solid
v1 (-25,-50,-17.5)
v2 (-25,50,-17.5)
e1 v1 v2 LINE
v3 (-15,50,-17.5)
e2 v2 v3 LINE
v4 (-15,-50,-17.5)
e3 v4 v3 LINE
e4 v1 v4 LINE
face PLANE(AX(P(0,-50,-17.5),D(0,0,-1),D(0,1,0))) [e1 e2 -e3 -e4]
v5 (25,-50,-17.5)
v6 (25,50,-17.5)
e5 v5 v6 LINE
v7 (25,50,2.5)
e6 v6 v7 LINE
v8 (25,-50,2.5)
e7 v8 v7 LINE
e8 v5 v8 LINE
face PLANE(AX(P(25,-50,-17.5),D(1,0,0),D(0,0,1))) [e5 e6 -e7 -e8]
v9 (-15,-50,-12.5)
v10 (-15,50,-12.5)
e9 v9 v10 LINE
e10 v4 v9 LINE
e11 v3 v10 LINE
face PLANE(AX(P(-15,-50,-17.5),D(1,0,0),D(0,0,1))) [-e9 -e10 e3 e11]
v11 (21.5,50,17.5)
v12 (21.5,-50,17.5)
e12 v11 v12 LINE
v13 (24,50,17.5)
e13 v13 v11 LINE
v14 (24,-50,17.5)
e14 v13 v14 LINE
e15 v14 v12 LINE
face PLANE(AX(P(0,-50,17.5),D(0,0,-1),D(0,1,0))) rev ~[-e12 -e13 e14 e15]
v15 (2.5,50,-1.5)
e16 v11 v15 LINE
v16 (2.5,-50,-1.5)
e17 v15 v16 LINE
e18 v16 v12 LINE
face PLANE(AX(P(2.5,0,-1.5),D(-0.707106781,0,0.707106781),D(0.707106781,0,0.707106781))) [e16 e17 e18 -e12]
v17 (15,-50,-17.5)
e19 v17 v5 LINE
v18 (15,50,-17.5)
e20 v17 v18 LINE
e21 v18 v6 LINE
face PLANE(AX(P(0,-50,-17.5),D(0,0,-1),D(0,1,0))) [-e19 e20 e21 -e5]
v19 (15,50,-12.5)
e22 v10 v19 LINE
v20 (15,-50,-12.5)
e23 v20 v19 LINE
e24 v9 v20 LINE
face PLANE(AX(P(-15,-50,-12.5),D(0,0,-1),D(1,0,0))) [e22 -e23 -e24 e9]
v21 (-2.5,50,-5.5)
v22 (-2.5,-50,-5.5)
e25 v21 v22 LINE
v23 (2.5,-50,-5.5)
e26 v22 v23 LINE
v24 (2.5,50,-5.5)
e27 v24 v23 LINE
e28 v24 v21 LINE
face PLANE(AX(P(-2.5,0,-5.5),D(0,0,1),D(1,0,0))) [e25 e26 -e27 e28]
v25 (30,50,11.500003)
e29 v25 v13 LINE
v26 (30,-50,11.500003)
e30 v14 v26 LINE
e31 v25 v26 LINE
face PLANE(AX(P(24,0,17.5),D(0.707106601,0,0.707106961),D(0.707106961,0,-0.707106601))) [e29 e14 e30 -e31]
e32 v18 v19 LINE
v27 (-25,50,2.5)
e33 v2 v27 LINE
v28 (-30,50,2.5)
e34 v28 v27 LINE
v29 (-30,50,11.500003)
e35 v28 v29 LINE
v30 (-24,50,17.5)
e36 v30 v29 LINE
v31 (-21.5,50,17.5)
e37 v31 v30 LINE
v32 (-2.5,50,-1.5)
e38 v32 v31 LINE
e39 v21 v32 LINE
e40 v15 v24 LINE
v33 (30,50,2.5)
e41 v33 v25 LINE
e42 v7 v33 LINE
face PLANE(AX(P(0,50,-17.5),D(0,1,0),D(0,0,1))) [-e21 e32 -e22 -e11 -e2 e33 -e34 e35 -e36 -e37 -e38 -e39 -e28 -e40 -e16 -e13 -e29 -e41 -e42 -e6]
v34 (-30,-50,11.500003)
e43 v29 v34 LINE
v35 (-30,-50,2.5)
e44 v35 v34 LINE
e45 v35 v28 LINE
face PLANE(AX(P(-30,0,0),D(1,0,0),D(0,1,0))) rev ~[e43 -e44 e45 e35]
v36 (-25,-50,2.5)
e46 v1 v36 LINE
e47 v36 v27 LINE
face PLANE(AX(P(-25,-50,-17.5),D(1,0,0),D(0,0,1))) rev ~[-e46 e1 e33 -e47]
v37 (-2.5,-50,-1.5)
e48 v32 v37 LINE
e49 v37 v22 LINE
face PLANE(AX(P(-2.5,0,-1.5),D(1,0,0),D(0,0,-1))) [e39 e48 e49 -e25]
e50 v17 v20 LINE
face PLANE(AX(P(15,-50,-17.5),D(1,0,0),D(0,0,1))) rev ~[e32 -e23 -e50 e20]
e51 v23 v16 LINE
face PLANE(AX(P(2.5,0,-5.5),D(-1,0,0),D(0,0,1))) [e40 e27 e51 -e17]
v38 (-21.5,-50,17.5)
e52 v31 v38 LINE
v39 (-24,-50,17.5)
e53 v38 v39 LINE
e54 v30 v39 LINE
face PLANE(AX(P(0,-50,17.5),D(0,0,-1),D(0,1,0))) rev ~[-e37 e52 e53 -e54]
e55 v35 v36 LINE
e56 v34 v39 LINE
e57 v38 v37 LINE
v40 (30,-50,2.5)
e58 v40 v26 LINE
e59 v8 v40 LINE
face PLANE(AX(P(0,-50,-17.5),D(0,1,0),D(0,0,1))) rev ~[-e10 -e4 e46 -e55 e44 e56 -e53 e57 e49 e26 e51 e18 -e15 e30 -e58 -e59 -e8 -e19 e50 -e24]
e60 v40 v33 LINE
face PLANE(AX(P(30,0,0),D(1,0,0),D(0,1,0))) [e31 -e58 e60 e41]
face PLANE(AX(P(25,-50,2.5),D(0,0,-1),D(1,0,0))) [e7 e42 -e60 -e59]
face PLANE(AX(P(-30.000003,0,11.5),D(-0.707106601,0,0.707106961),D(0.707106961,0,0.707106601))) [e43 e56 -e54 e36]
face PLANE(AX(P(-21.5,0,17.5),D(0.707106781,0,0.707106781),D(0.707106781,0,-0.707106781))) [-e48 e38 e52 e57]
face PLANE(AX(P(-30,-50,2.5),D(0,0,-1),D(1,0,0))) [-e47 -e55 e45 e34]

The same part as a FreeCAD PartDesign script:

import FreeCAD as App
import Part
import Sketcher
Q = App.Units.Quantity


def add_polygon(sketch, points):
    """Adds a closed chain of lines whose ends are joined by coincident constraints."""
    first, n = sketch.GeometryCount, len(points)
    for a, b in zip(points, points[1:] + points[:1]):
        sketch.addGeometry(Part.LineSegment(App.Vector(*a, 0), App.Vector(*b, 0)), False)
    for i in range(n):
        sketch.addConstraint(Sketcher.Constraint("Coincident", first + i, 2, first + (i + 1) % n, 1))

doc = App.newDocument("Part")
body = doc.addObject("PartDesign::Body", "Body")

# Sketch on YZ plane
sketch1 = body.newObject("Sketcher::SketchObject", "Sketch")
sketch1.AttachmentSupport = (doc.getObject("YZ_Plane"), [""])
sketch1.MapMode = "FlatFace"
add_polygon(sketch1, [(-50, 17.5), (-50, -17.5), (50, -17.5), (50, 17.5)])  # lines 0-3
sketch1.addConstraint(Sketcher.Constraint("Vertical", 0))
sketch1.addConstraint(Sketcher.Constraint("Horizontal", 1))
sketch1.addConstraint(Sketcher.Constraint("Vertical", 2))
sketch1.addConstraint(Sketcher.Constraint("Horizontal", 3))
sketch1.addConstraint(Sketcher.Constraint("Symmetric", 0, 2, 2, 2, -1, 1))
sketch1.addConstraint(Sketcher.Constraint("DistanceX", 1, 1, 1, 2, Q("100 mm")))
sketch1.addConstraint(Sketcher.Constraint("DistanceY", 0, 2, 0, 1, Q("35 mm")))
pad1 = body.newObject("PartDesign::Pad", "Pad")
pad1.Profile = sketch1
pad1.Length = 60
pad1.Midplane = True

# Sketch on XZ plane
sketch2 = body.newObject("Sketcher::SketchObject", "Sketch001")
sketch2.AttachmentSupport = (doc.getObject("XZ_Plane"), [""])
sketch2.MapMode = "FlatFace"
sketch2.AttachmentOffset = App.Placement(App.Vector(0, 0, 50), App.Rotation())
add_polygon(sketch2, [(-30, 2.5), (-30, -17.5), (-25, -17.5), (-25, 2.5)])  # lines 0-3
add_polygon(sketch2, [(-15, -12.5), (-15, -17.5), (15, -17.5), (15, -12.5)])  # lines 4-7
add_polygon(sketch2, [(25, 2.5), (25, -17.5), (30, -17.5), (30, 2.5)])  # lines 8-11
sketch2.addConstraint(Sketcher.Constraint("Vertical", 0))
sketch2.addConstraint(Sketcher.Constraint("Horizontal", 1))
sketch2.addConstraint(Sketcher.Constraint("Vertical", 2))
sketch2.addConstraint(Sketcher.Constraint("Horizontal", 3))
sketch2.addConstraint(Sketcher.Constraint("Vertical", 4))
sketch2.addConstraint(Sketcher.Constraint("Horizontal", 5))
sketch2.addConstraint(Sketcher.Constraint("Vertical", 6))
sketch2.addConstraint(Sketcher.Constraint("Horizontal", 7))
sketch2.addConstraint(Sketcher.Constraint("Vertical", 8))
sketch2.addConstraint(Sketcher.Constraint("Horizontal", 9))
sketch2.addConstraint(Sketcher.Constraint("Vertical", 10))
sketch2.addConstraint(Sketcher.Constraint("Horizontal", 11))
sketch2.addConstraint(Sketcher.Constraint("Symmetric", 1, 2, 8, 2, -2))
sketch2.addConstraint(Sketcher.Constraint("Symmetric", 3, 2, 10, 2, -2))
sketch2.addConstraint(Sketcher.Constraint("Horizontal", 1, 2, 4, 2))
sketch2.addConstraint(Sketcher.Constraint("Equal", 11, 4))
sketch2.addConstraint(Sketcher.Constraint("DistanceX", 1, 1, 1, 2, Q("5 mm")))
sketch2.addConstraint(Sketcher.Constraint("DistanceX", 5, 1, 5, 2, Q("30 mm")))
sketch2.addConstraint(Sketcher.Constraint("DistanceY", 0, 2, 0, 1, Q("20 mm")))
sketch2.addConstraint(Sketcher.Constraint("DistanceX", 0, 2, -1, 1, Q("30 mm")))
sketch2.addConstraint(Sketcher.Constraint("DistanceX", 4, 2, -1, 1, Q("15 mm")))
sketch2.addConstraint(Sketcher.Constraint("DistanceY", 0, 2, -1, 1, Q("17.5 mm")))
pocket1 = body.newObject("PartDesign::Pocket", "Pocket")
pocket1.Profile = sketch2
pocket1.Length = 100

# Sketch on XZ plane
sketch3 = body.newObject("Sketcher::SketchObject", "Sketch002")
sketch3.AttachmentSupport = (doc.getObject("XZ_Plane"), [""])
sketch3.MapMode = "FlatFace"
add_polygon(sketch3, [(30.000003, 11.5), (30.000003, 17.5), (24, 17.5)])  # lines 0-2
add_polygon(sketch3, [(-30.000003, 11.5), (-24, 17.5), (-30.000003, 17.5)])  # lines 3-5
sketch3.addConstraint(Sketcher.Constraint("Vertical", 0))
sketch3.addConstraint(Sketcher.Constraint("Horizontal", 1))
sketch3.addConstraint(Sketcher.Constraint("Horizontal", 4))
sketch3.addConstraint(Sketcher.Constraint("Vertical", 5))
sketch3.addConstraint(Sketcher.Constraint("Symmetric", 1, 2, 3, 2, -2))
sketch3.addConstraint(Sketcher.Constraint("Symmetric", 2, 2, 5, 2, -2))
sketch3.addConstraint(Sketcher.Constraint("Perpendicular", 2, 3))
sketch3.addConstraint(Sketcher.Constraint("DistanceY", 0, 1, 0, 2, Q("6 mm")))
sketch3.addConstraint(Sketcher.Constraint("DistanceX", -1, 1, 1, 2, Q("24 mm")))
sketch3.addConstraint(Sketcher.Constraint("DistanceY", -1, 1, 0, 2, Q("17.5 mm")))
pocket2 = body.newObject("PartDesign::Pocket", "Pocket001")
pocket2.Profile = sketch3
pocket2.Type = "ThroughAll"
pocket2.Midplane = True

# Sketch on XZ plane
sketch4 = body.newObject("Sketcher::SketchObject", "Sketch003")
sketch4.AttachmentSupport = (doc.getObject("XZ_Plane"), [""])
sketch4.MapMode = "FlatFace"
add_polygon(sketch4, [(2.5, -5.5), (2.5, -1.5), (21.5, 17.5), (-21.5, 17.5), (-2.5, -1.5), (-2.5, -5.5)])  # lines 0-5
sketch4.addConstraint(Sketcher.Constraint("Vertical", 0))
sketch4.addConstraint(Sketcher.Constraint("Horizontal", 2))
sketch4.addConstraint(Sketcher.Constraint("Vertical", 4))
sketch4.addConstraint(Sketcher.Constraint("Horizontal", 5))
sketch4.addConstraint(Sketcher.Constraint("Symmetric", 0, 2, 3, 2, -2))
sketch4.addConstraint(Sketcher.Constraint("Perpendicular", 1, 3))
sketch4.addConstraint(Sketcher.Constraint("Equal", 1, 3))
sketch4.addConstraint(Sketcher.Constraint("DistanceX", 2, 2, 2, 1, Q("43 mm")))
sketch4.addConstraint(Sketcher.Constraint("DistanceX", 5, 1, 5, 2, Q("5 mm")))
sketch4.addConstraint(Sketcher.Constraint("DistanceY", 0, 1, 0, 2, Q("4 mm")))
sketch4.addConstraint(Sketcher.Constraint("DistanceY", 0, 2, -1, 1, Q("1.5 mm")))
pocket3 = body.newObject("PartDesign::Pocket", "Pocket002")
pocket3.Profile = sketch4
pocket3.Type = "ThroughAll"
pocket3.Midplane = True

doc.recompute()
